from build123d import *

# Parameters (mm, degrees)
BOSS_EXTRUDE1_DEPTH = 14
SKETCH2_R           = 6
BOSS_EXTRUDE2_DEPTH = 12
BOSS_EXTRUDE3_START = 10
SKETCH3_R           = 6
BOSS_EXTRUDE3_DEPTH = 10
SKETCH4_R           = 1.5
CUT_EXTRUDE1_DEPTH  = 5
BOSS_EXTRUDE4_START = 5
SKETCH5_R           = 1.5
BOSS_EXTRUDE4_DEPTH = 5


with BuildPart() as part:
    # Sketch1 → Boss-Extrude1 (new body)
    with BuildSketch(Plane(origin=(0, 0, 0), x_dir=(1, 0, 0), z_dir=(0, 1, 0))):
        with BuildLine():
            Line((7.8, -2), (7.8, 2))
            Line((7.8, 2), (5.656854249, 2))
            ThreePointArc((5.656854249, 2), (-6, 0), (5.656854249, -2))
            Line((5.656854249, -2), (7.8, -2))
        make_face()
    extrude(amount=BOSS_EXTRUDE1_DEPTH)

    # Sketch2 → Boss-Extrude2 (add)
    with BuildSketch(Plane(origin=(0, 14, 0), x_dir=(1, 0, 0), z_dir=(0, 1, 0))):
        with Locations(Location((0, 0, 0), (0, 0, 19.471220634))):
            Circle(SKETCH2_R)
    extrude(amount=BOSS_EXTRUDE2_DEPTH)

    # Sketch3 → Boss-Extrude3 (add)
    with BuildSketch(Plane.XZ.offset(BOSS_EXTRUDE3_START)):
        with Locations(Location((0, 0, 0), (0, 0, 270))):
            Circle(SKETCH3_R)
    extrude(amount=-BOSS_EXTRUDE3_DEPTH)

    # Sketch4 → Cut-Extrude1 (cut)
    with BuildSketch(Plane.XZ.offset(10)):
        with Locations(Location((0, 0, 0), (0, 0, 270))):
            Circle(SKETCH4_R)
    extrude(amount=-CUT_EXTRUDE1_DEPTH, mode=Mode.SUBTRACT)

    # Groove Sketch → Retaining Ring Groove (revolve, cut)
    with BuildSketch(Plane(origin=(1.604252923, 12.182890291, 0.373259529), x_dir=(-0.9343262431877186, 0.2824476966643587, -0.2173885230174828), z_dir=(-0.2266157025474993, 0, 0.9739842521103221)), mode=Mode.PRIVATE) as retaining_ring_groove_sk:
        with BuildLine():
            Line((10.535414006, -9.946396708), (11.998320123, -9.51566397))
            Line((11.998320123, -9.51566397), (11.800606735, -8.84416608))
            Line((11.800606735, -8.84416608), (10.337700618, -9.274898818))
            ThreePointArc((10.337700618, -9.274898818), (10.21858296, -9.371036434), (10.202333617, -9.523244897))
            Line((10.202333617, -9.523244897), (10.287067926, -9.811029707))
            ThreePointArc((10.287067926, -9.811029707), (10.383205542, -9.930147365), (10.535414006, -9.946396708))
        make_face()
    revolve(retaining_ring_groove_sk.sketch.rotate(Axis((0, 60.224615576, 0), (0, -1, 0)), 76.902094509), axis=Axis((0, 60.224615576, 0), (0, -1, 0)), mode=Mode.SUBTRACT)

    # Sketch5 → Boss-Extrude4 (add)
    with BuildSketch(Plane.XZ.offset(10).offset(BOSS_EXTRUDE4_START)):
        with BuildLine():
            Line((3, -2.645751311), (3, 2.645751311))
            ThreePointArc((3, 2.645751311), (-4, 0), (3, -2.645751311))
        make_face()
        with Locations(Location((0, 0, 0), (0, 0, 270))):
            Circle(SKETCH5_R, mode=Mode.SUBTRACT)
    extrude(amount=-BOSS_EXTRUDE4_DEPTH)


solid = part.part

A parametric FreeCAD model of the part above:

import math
import FreeCAD as App
import Part
import Sketcher

V = App.Vector

doc = App.newDocument("Part")
params = doc.addObject("Spreadsheet::Sheet", "Params")
for row, (alias, value) in enumerate([
    ("sketch1_radius", "6 mm"),
    ("sketch1_height", "4 mm"),
    ("pad1_length", "14 mm"),
    ("sketch2_diameter", "12 mm"),
    ("pad2_length", "12 mm"),
    ("sketch3_diameter", "12 mm"),
    ("pad3_length", "10 mm"),
    ("sketch4_diameter", "3 mm"),
    ("pocket1_length", "5 mm"),
    ("sketch5_radius", "0.2 mm"),
    ("sketch5_length", "0.7 mm"),
    ("groove_angle", "360 deg"),
    ("sketch6_diameter", "3 mm"),
    ("sketch6_radius", "4 mm"),
    ("pad4_length", "5 mm"),
], start=1):
    params.set(f"A{row}", alias)
    params.set(f"B{row}", "=" + value)
    params.setAlias(f"B{row}", alias)

body = doc.addObject("PartDesign::Body", "Body")

# Sketch on XZ plane
sketch1 = doc.addObject("Sketcher::SketchObject", "Sketch")
body.addObject(sketch1)
sketch1.AttachmentSupport = (doc.XZ_Plane, [""])
sketch1.MapMode = "FlatFace"
sketch1.addGeometry([
    Part.LineSegment(V(7.8, 2, 0), V(7.8, -2, 0)),
    Part.LineSegment(V(7.8, -2, 0), V(5.7, -2, 0)),
    Part.ArcOfCircle(Part.Circle(V(0, 0, 0), V(0, 0, 1), 6), math.radians(19), math.radians(341)),
    Part.LineSegment(V(5.7, 2, 0), V(7.8, 2, 0)),
], False)
sketch1.addConstraint([
    Sketcher.Constraint("Coincident", 0, 2, 1, 1),
    Sketcher.Constraint("Coincident", 1, 2, 2, 2),
    Sketcher.Constraint("Coincident", 2, 1, 3, 1),
    Sketcher.Constraint("Coincident", 3, 2, 0, 1),
    Sketcher.Constraint("Vertical", 0),
    Sketcher.Constraint("Horizontal", 1),
    Sketcher.Constraint("Horizontal", 3),
    Sketcher.Constraint("Coincident", 2, 3, -1, 1),
    Sketcher.Constraint("Vertical", 1, 2, 2, 1),
    Sketcher.Constraint("Radius", 2, 6.0),
    Sketcher.Constraint("DistanceY", 0, 2, 0, 1, 4.0),
    Sketcher.Constraint("DistanceX", -1, 1, 0, 2, 7.8),
])
sketch1.setExpression("Constraints[9]", "Params.sketch1_radius")
sketch1.setExpression("Constraints[10]", "Params.sketch1_height")
pad1 = doc.addObject("PartDesign::Pad", "Pad")
body.addObject(pad1)
pad1.Profile = sketch1
pad1.setExpression("Length", "Params.pad1_length")
pad1.Reversed = True

# Sketch on XZ plane
sketch2 = doc.addObject("Sketcher::SketchObject", "Sketch001")
body.addObject(sketch2)
sketch2.AttachmentSupport = (doc.XZ_Plane, [""])
sketch2.MapMode = "FlatFace"
sketch2.AttachmentOffset = App.Placement(V(0, 0, -14), App.Rotation())
sketch2.addGeometry(Part.Circle(V(0, 0, 0), V(0, 0, 1), 6), False)
sketch2.addConstraint([
    Sketcher.Constraint("Coincident", 0, 3, -1, 1),
    Sketcher.Constraint("Diameter", 0, 12.0),
])
sketch2.setExpression("Constraints[1]", "Params.sketch2_diameter")
pad2 = doc.addObject("PartDesign::Pad", "Pad001")
body.addObject(pad2)
pad2.Profile = sketch2
pad2.setExpression("Length", "Params.pad2_length")
pad2.Reversed = True

# Sketch on XZ plane
sketch3 = doc.addObject("Sketcher::SketchObject", "Sketch002")
body.addObject(sketch3)
sketch3.AttachmentSupport = (doc.XZ_Plane, [""])
sketch3.MapMode = "FlatFace"
sketch3.AttachmentOffset = App.Placement(V(0, 0, 10), App.Rotation())
sketch3.addGeometry(Part.Circle(V(0, 0, 0), V(0, 0, 1), 6), False)
sketch3.addConstraint([
    Sketcher.Constraint("Coincident", 0, 3, -1, 1),
    Sketcher.Constraint("Diameter", 0, 12.0),
])
sketch3.setExpression("Constraints[1]", "Params.sketch3_diameter")
pad3 = doc.addObject("PartDesign::Pad", "Pad002")
body.addObject(pad3)
pad3.Profile = sketch3
pad3.setExpression("Length", "Params.pad3_length")
pad3.Reversed = True

# Sketch on XZ plane
sketch4 = doc.addObject("Sketcher::SketchObject", "Sketch003")
body.addObject(sketch4)
sketch4.AttachmentSupport = (doc.XZ_Plane, [""])
sketch4.MapMode = "FlatFace"
sketch4.AttachmentOffset = App.Placement(V(0, 0, 10), App.Rotation())
sketch4.addGeometry(Part.Circle(V(0, 0, 0), V(0, 0, 1), 1.5), False)
sketch4.addConstraint([
    Sketcher.Constraint("Coincident", 0, 3, -1, 1),
    Sketcher.Constraint("Diameter", 0, 3.0),
])
sketch4.setExpression("Constraints[1]", "Params.sketch4_diameter")
pocket1 = doc.addObject("PartDesign::Pocket", "Pocket")
body.addObject(pocket1)
pocket1.Profile = sketch4
pocket1.setExpression("Length", "Params.pocket1_length")

# Sketch on an angled plane
sketch5 = doc.addObject("Sketcher::SketchObject", "Sketch004")
body.addObject(sketch5)
sketch5.Placement = App.Placement(V(1.604253, 12.18289, 0.37326), App.Rotation(V(-0.934326243, 0.282447697, -0.217388523), V(-0.275099609, -0.9592827, -0.064007083), V(-0.226615703, 0, 0.973984252), "ZXY"))
sketch5.addGeometry([
    Part.LineSegment(V(10.54, -9.95, 0), V(12, -9.52, 0)),  # 0
    Part.LineSegment(V(12, -9.52, 0), V(11.8, -8.84, 0)),  # 1
    Part.LineSegment(V(11.8, -8.84, 0), V(10.34, -9.27, 0)),  # 2
    Part.ArcOfCircle(Part.Circle(V(10.39, -9.47, 0), V(0, 0, 1), 0.2), math.radians(106), math.radians(196)),  # 3
    Part.LineSegment(V(10.2, -9.52, 0), V(10.29, -9.81, 0)),  # 4
    Part.ArcOfCircle(Part.Circle(V(10.48, -9.75, 0), V(0, 0, 1), 0.2), math.radians(-164), math.radians(-74)),  # 5
], False)
sketch5.addGeometry(Part.LineSegment(V(5.12, -11.54, 0), V(4.92, -10.87, 0)), True)  # axis
sketch5.addConstraint([
    Sketcher.Constraint("Coincident", 0, 2, 1, 1),
    Sketcher.Constraint("Coincident", 1, 2, 2, 1),
    Sketcher.Constraint("Tangent", 2, 2, 3, 1),
    Sketcher.Constraint("Tangent", 3, 2, 4, 1),
    Sketcher.Constraint("Tangent", 4, 2, 5, 1),
    Sketcher.Constraint("Tangent", 5, 2, 0, 1),
    Sketcher.Constraint("Equal", 3, 5),
    Sketcher.Constraint("Perpendicular", 0, 1),
    Sketcher.Constraint("Perpendicular", 1, 2),
    Sketcher.Constraint("Perpendicular", 2, 4),
    Sketcher.Constraint("Parallel", 4, 6),
    Sketcher.Constraint("Equal", 1, 6),
    Sketcher.Constraint("Radius", 3, 0.2),
    Sketcher.Constraint("Distance", 1, 0.7),
    Sketcher.Constraint("Distance", 0, 1.525),
    Sketcher.Constraint("DistanceX", -1, 1, 2, 2, 10.337701),
    Sketcher.Constraint("DistanceY", 2, 2, -1, 1, 9.274899),
    Sketcher.Constraint("DistanceX", 6, 1, 4, 2, 5.171601),
    Sketcher.Constraint("DistanceY", 6, 2, 4, 2, 1.059699),
    Sketcher.Constraint("DistanceX", -1, 1, 3, 3, 10.39419),
])
sketch5.setExpression("Constraints[12]", "Params.sketch5_radius")
sketch5.setExpression("Constraints[13]", "Params.sketch5_length")
groove = doc.addObject("PartDesign::Groove", "Groove")
body.addObject(groove)
groove.Profile = sketch5
groove.ReferenceAxis = (sketch5, ["Axis0"])
groove.setExpression("Angle", "Params.groove_angle")

# Sketch on XZ plane
sketch6 = doc.addObject("Sketcher::SketchObject", "Sketch005")
body.addObject(sketch6)
sketch6.AttachmentSupport = (doc.XZ_Plane, [""])
sketch6.MapMode = "FlatFace"
sketch6.AttachmentOffset = App.Placement(V(0, 0, 15), App.Rotation())
sketch6.addGeometry([
    Part.LineSegment(V(3, -2.6, 0), V(3, 2.6, 0)),
    Part.ArcOfCircle(Part.Circle(V(0, 0, 0), V(0, 0, 1), 4), math.radians(41), math.radians(319)),
    Part.Circle(V(0, 0, 0), V(0, 0, 1), 1.5),
], False)
sketch6.addConstraint([
    Sketcher.Constraint("Coincident", 0, 1, 1, 2),
    Sketcher.Constraint("Coincident", 1, 1, 0, 2),
    Sketcher.Constraint("Vertical", 0),
    Sketcher.Constraint("Coincident", 1, 3, -1, 1),
    Sketcher.Constraint("Coincident", 2, 3, -1, 1),
    Sketcher.Constraint("Diameter", 2, 3.0),
    Sketcher.Constraint("Radius", 1, 4.0),
    Sketcher.Constraint("DistanceX", -1, 1, 0, 1, 3.0),
])
sketch6.setExpression("Constraints[5]", "Params.sketch6_diameter")
sketch6.setExpression("Constraints[6]", "Params.sketch6_radius")
pad4 = doc.addObject("PartDesign::Pad", "Pad003")
body.addObject(pad4)
pad4.Profile = sketch6
pad4.setExpression("Length", "Params.pad4_length")
pad4.Reversed = True

doc.recompute()
